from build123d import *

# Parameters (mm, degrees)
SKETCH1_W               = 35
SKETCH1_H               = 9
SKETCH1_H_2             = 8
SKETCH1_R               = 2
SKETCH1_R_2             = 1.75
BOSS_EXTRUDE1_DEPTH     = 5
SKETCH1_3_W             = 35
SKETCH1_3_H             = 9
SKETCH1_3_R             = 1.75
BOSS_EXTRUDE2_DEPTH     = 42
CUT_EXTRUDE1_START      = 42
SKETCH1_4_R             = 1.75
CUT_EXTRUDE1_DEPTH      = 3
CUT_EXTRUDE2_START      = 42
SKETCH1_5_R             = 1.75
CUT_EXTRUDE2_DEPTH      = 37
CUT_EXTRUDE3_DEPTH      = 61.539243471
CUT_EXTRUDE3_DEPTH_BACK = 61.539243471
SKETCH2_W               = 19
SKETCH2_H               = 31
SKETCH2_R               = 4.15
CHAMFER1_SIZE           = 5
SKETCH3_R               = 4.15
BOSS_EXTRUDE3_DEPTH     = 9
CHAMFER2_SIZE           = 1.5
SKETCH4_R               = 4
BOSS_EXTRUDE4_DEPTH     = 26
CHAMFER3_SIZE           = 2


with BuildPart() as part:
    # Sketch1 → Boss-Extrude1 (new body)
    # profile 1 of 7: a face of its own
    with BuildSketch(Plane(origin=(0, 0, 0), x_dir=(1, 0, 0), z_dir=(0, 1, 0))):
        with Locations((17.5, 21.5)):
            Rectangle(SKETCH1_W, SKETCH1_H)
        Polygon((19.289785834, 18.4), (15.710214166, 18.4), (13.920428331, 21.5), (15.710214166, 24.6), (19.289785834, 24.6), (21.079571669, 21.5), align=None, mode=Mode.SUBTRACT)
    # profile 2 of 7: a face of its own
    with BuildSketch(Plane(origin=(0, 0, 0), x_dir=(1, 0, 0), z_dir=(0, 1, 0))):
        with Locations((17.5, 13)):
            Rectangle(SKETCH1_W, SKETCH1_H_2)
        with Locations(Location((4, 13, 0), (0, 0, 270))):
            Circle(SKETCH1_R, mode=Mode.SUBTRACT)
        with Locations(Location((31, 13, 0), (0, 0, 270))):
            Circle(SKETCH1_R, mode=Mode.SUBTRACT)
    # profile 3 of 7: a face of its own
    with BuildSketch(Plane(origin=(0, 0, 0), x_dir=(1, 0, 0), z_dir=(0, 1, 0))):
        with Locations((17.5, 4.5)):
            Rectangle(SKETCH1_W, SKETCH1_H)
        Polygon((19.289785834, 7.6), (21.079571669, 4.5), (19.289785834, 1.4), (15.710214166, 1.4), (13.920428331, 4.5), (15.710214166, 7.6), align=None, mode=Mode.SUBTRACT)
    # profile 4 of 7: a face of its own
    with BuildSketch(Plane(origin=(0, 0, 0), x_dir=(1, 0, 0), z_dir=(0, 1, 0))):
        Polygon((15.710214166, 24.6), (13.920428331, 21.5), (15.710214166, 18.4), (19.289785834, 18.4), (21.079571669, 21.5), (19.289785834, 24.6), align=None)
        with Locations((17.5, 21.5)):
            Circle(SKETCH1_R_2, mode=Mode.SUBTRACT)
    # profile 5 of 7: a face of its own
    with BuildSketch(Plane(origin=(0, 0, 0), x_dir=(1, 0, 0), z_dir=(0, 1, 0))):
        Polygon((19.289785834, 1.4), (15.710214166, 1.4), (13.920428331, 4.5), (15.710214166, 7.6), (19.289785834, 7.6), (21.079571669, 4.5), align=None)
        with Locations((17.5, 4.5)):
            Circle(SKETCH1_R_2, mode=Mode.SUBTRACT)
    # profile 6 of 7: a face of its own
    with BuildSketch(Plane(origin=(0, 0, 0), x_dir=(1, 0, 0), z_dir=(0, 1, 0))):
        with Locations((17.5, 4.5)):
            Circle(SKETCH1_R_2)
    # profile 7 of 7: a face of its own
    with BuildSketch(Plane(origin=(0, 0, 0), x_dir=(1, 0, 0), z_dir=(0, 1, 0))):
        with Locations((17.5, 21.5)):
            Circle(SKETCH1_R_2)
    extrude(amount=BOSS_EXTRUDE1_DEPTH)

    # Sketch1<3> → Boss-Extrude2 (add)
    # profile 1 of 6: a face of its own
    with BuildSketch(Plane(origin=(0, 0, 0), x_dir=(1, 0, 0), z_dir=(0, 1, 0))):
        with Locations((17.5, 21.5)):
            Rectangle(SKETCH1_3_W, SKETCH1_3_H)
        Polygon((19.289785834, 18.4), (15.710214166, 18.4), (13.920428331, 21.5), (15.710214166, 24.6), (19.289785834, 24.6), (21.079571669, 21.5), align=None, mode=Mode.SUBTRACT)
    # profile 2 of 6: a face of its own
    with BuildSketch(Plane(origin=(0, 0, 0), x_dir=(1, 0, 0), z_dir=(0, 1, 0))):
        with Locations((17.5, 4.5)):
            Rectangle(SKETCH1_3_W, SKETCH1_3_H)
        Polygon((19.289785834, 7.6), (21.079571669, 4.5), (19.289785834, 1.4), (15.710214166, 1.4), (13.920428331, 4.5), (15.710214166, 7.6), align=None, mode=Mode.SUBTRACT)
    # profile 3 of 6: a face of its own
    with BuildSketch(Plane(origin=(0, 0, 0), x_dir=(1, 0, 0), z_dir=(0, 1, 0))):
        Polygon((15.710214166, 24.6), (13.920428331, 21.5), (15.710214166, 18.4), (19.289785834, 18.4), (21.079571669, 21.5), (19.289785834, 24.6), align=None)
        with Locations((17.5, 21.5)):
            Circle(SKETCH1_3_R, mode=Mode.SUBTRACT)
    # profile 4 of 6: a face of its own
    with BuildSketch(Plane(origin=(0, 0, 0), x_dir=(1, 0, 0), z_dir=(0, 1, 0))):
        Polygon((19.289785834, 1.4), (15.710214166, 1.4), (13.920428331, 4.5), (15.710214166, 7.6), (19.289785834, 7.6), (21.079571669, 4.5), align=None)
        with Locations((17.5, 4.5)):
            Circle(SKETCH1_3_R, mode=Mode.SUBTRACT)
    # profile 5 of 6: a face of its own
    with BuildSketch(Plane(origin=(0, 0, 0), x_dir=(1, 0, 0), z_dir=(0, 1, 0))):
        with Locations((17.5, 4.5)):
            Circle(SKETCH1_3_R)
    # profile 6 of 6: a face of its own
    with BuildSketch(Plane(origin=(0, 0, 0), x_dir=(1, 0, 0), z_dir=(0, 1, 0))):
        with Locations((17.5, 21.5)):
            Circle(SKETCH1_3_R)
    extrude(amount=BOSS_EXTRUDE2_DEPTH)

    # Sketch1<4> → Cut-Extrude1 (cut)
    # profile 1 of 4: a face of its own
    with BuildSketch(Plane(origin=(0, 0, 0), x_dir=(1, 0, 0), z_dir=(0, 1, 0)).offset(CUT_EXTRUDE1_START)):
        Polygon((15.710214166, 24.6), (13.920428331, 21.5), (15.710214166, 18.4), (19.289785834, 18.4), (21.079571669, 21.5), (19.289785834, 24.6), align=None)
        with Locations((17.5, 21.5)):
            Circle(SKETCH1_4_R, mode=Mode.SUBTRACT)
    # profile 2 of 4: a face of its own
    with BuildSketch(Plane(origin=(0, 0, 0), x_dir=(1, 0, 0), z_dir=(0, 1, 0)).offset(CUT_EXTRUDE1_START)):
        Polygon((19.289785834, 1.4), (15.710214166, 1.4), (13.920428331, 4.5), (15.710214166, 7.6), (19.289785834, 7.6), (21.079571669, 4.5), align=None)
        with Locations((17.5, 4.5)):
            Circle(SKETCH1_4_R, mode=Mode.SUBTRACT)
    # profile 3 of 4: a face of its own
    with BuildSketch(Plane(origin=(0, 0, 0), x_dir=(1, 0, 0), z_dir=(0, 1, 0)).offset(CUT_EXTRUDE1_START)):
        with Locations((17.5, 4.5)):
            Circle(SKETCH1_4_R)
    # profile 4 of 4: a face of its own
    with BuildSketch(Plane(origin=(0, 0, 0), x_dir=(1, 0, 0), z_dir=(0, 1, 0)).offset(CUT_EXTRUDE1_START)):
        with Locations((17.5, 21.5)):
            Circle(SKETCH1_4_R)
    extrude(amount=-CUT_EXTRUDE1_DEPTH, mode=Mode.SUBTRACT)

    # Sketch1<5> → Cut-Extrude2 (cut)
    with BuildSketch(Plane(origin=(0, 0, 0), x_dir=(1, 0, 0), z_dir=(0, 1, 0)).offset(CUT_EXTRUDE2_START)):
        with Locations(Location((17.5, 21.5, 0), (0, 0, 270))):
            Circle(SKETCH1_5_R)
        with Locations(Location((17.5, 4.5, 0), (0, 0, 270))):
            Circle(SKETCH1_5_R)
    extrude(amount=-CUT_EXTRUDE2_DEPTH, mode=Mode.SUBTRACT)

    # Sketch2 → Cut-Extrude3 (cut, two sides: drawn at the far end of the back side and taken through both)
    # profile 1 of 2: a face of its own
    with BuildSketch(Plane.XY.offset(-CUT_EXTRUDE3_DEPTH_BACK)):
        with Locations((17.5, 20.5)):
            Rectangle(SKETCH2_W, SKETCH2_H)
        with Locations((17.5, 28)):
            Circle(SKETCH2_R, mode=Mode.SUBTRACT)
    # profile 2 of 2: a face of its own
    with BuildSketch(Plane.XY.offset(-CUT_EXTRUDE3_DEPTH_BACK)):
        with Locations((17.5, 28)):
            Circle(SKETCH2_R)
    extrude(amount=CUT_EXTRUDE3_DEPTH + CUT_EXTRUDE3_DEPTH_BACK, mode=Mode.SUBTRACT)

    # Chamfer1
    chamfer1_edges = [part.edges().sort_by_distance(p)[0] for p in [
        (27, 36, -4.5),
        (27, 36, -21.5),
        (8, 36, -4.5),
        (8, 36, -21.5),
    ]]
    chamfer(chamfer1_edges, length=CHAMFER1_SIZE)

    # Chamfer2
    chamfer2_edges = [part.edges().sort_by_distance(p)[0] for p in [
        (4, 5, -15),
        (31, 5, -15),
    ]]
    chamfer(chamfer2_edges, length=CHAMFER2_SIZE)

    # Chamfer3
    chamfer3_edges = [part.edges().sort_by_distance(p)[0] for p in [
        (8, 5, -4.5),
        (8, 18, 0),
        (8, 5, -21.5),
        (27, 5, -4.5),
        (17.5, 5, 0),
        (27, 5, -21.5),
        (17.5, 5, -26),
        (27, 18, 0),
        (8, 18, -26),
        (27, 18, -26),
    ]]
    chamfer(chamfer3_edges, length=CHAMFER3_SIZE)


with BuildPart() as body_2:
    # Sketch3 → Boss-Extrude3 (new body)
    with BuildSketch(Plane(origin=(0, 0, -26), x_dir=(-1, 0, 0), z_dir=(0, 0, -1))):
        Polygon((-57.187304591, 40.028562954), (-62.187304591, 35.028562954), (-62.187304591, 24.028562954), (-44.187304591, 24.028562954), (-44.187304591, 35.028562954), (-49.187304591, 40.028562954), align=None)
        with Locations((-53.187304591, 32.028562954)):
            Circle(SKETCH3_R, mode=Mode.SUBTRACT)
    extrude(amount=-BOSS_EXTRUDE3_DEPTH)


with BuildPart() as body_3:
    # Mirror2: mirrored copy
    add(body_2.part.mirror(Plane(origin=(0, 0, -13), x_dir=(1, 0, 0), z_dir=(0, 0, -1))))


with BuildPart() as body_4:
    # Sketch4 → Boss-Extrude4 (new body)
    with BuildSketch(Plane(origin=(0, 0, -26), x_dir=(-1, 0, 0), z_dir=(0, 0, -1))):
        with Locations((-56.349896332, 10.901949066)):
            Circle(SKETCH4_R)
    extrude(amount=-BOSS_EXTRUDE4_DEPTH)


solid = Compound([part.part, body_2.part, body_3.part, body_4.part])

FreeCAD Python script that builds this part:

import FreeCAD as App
import Part
import Sketcher
from FreeCAD import Vector
Q = App.Units.Quantity


def edges_at(feature, points):
    """Names of the edges that pass closest to the given points."""
    edges = feature.Shape.Edges
    near = lambda p: min(range(len(edges)), key=lambda i: edges[i].distToShape(Part.Vertex(*p))[0])
    return sorted({f"Edge{near(p) + 1}" for p in points})

doc = App.newDocument("Part")
body = doc.addObject("PartDesign::Body", "Body")

# Sketch on XZ plane
sketch1 = body.newObject("Sketcher::SketchObject", "Sketch")
sketch1.AttachmentSupport = (doc.getObject("XZ_Plane"), [""])
sketch1.MapMode = "FlatFace"
sketch1.addGeometry([
    Part.LineSegment(Vector(0, -26, 0), Vector(0, 0, 0)),  # 0
    Part.LineSegment(Vector(0, 0, 0), Vector(35, 0, 0)),  # 1
    Part.LineSegment(Vector(35, 0, 0), Vector(35, -26, 0)),  # 2
    Part.LineSegment(Vector(35, -26, 0), Vector(0, -26, 0)),  # 3
    Part.Circle(Vector(31, -13, 0), Vector(0, 0, 1), 2),  # 4
    Part.Circle(Vector(4, -13, 0), Vector(0, 0, 1), 2),  # 5
], False)
sketch1.addConstraint([
    Sketcher.Constraint("Coincident", 0, 2, 1, 1),
    Sketcher.Constraint("Coincident", 1, 2, 2, 1),
    Sketcher.Constraint("Coincident", 2, 2, 3, 1),
    Sketcher.Constraint("Coincident", 3, 2, 0, 1),
    Sketcher.Constraint("Vertical", 0),
    Sketcher.Constraint("Horizontal", 1),
    Sketcher.Constraint("Vertical", 2),
    Sketcher.Constraint("Horizontal", 3),
    Sketcher.Constraint("Coincident", 0, 2, -1, 1),
    Sketcher.Constraint("Equal", 4, 5),
    Sketcher.Constraint("Horizontal", 4, 3, 5, 3),
    Sketcher.Constraint("Diameter", 4, Q("4 mm")),
    Sketcher.Constraint("DistanceX", 1, 1, 1, 2, Q("35 mm")),
    Sketcher.Constraint("DistanceY", 0, 1, 0, 2, Q("26 mm")),
    Sketcher.Constraint("DistanceX", -1, 1, 4, 3, Q("31 mm")),
    Sketcher.Constraint("DistanceY", 4, 3, -1, 1, Q("13 mm")),
    Sketcher.Constraint("DistanceX", -1, 1, 5, 3, Q("4 mm")),
])
pad1 = body.newObject("PartDesign::Pad", "Pad")
pad1.Profile = sketch1
pad1.Length = 5
pad1.Reversed = True

# Sketch on XZ plane
sketch2 = body.newObject("Sketcher::SketchObject", "Sketch001")
sketch2.AttachmentSupport = (doc.getObject("XZ_Plane"), [""])
sketch2.MapMode = "FlatFace"
sketch2.addGeometry([
    Part.LineSegment(Vector(0, -26, 0), Vector(0, -17, 0)),  # 0
    Part.LineSegment(Vector(0, -17, 0), Vector(35, -17, 0)),  # 1
    Part.LineSegment(Vector(35, -17, 0), Vector(35, -26, 0)),  # 2
    Part.LineSegment(Vector(35, -26, 0), Vector(0, -26, 0)),  # 3
    Part.LineSegment(Vector(0, -9, 0), Vector(0, 0, 0)),  # 4
    Part.LineSegment(Vector(0, 0, 0), Vector(35, 0, 0)),  # 5
    Part.LineSegment(Vector(35, 0, 0), Vector(35, -9, 0)),  # 6
    Part.LineSegment(Vector(35, -9, 0), Vector(0, -9, 0)),  # 7
], False)
sketch2.addConstraint([
    Sketcher.Constraint("Coincident", 0, 2, 1, 1),
    Sketcher.Constraint("Coincident", 1, 2, 2, 1),
    Sketcher.Constraint("Coincident", 2, 2, 3, 1),
    Sketcher.Constraint("Coincident", 3, 2, 0, 1),
    Sketcher.Constraint("Coincident", 4, 2, 5, 1),
    Sketcher.Constraint("Coincident", 5, 2, 6, 1),
    Sketcher.Constraint("Coincident", 6, 2, 7, 1),
    Sketcher.Constraint("Coincident", 7, 2, 4, 1),
    Sketcher.Constraint("Vertical", 0),
    Sketcher.Constraint("Horizontal", 1),
    Sketcher.Constraint("Vertical", 2),
    Sketcher.Constraint("Horizontal", 3),
    Sketcher.Constraint("Vertical", 4),
    Sketcher.Constraint("Horizontal", 5),
    Sketcher.Constraint("Vertical", 6),
    Sketcher.Constraint("Horizontal", 7),
    Sketcher.Constraint("Coincident", 4, 2, -1, 1),
    Sketcher.Constraint("PointOnObject", 0, 2, -2),
    Sketcher.Constraint("Vertical", 2, 2, 5, 2),
    Sketcher.Constraint("Equal", 2, 4),
    Sketcher.Constraint("DistanceX", 1, 1, 1, 2, Q("35 mm")),
    Sketcher.Constraint("DistanceY", 0, 1, 0, 2, Q("9 mm")),
    Sketcher.Constraint("DistanceY", 0, 2, -1, 1, Q("17 mm")),
])
pad2 = body.newObject("PartDesign::Pad", "Pad001")
pad2.Profile = sketch2
pad2.Length = 42
pad2.Reversed = True

# Sketch on XZ plane
sketch3 = body.newObject("Sketcher::SketchObject", "Sketch002")
sketch3.AttachmentSupport = (doc.getObject("XZ_Plane"), [""])
sketch3.MapMode = "FlatFace"
sketch3.AttachmentOffset = App.Placement(Vector(0, 0, -42), App.Rotation())
sketch3.addGeometry([
    Part.LineSegment(Vector(15.710214, -24.6, 0), Vector(13.920428, -21.5, 0)),  # 0
    Part.LineSegment(Vector(13.920428, -21.5, 0), Vector(15.710214, -18.4, 0)),  # 1
    Part.LineSegment(Vector(15.710214, -18.4, 0), Vector(19.289786, -18.4, 0)),  # 2
    Part.LineSegment(Vector(19.289786, -18.4, 0), Vector(21.079572, -21.5, 0)),  # 3
    Part.LineSegment(Vector(21.079572, -21.5, 0), Vector(19.289786, -24.6, 0)),  # 4
    Part.LineSegment(Vector(19.289786, -24.6, 0), Vector(15.710214, -24.6, 0)),  # 5
    Part.LineSegment(Vector(15.710214, -1.4, 0), Vector(19.289786, -1.4, 0)),  # 6
    Part.LineSegment(Vector(19.289786, -1.4, 0), Vector(21.079572, -4.5, 0)),  # 7
    Part.LineSegment(Vector(21.079572, -4.5, 0), Vector(19.289786, -7.6, 0)),  # 8
    Part.LineSegment(Vector(19.289786, -7.6, 0), Vector(15.710214, -7.6, 0)),  # 9
    Part.LineSegment(Vector(15.710214, -7.6, 0), Vector(13.920428, -4.5, 0)),  # 10
    Part.LineSegment(Vector(13.920428, -4.5, 0), Vector(15.710214, -1.4, 0)),  # 11
], False)
sketch3.addConstraint([
    Sketcher.Constraint("Coincident", 0, 2, 1, 1),
    Sketcher.Constraint("Coincident", 1, 2, 2, 1),
    Sketcher.Constraint("Coincident", 2, 2, 3, 1),
    Sketcher.Constraint("Coincident", 3, 2, 4, 1),
    Sketcher.Constraint("Coincident", 4, 2, 5, 1),
    Sketcher.Constraint("Coincident", 5, 2, 0, 1),
    Sketcher.Constraint("Coincident", 6, 2, 7, 1),
    Sketcher.Constraint("Coincident", 7, 2, 8, 1),
    Sketcher.Constraint("Coincident", 8, 2, 9, 1),
    Sketcher.Constraint("Coincident", 9, 2, 10, 1),
    Sketcher.Constraint("Coincident", 10, 2, 11, 1),
    Sketcher.Constraint("Coincident", 11, 2, 6, 1),
    Sketcher.Constraint("Horizontal", 2),
    Sketcher.Constraint("Horizontal", 5),
    Sketcher.Constraint("Horizontal", 6),
    Sketcher.Constraint("Horizontal", 9),
    Sketcher.Constraint("Parallel", 0, 3),
    Sketcher.Constraint("Parallel", 1, 4),
    Sketcher.Constraint("Parallel", 3, 7),
    Sketcher.Constraint("Parallel", 4, 8),
    Sketcher.Constraint("Parallel", 7, 10),
    Sketcher.Constraint("Parallel", 8, 11),
    Sketcher.Constraint("Horizontal", 0, 2, 3, 2),
    Sketcher.Constraint("Horizontal", 7, 2, 10, 2),
    Sketcher.Constraint("Vertical", 2, 2, 4, 2),
    Sketcher.Constraint("Vertical", 1, 2, 5, 2),
    Sketcher.Constraint("Vertical", 4, 2, 6, 2),
    Sketcher.Constraint("Vertical", 3, 2, 7, 2),
    Sketcher.Constraint("Vertical", 6, 2, 8, 2),
    Sketcher.Constraint("Vertical", 5, 2, 9, 2),
    Sketcher.Constraint("Angle", 0, Q("120 deg")),
    Sketcher.Constraint("DistanceY", 2, 2, 6, 2, Q("17 mm")),
    Sketcher.Constraint("DistanceY", 0, 2, -1, 1, Q("21.5 mm")),
    Sketcher.Constraint("DistanceY", 1, 2, -1, 1, Q("18.4 mm")),
    Sketcher.Constraint("DistanceX", 2, 1, 2, 2, Q("3.579572 mm")),
    Sketcher.Constraint("DistanceX", -1, 1, 0, 2, Q("13.920428 mm")),
])
pocket1 = body.newObject("PartDesign::Pocket", "Pocket")
pocket1.Profile = sketch3
pocket1.Length = 3
pocket1.Reversed = True

# Sketch on XZ plane
sketch4 = body.newObject("Sketcher::SketchObject", "Sketch003")
sketch4.AttachmentSupport = (doc.getObject("XZ_Plane"), [""])
sketch4.MapMode = "FlatFace"
sketch4.AttachmentOffset = App.Placement(Vector(0, 0, -42), App.Rotation())
sketch4.addGeometry([
    Part.Circle(Vector(17.5, -21.5, 0), Vector(0, 0, 1), 1.75),
    Part.Circle(Vector(17.5, -4.5, 0), Vector(0, 0, 1), 1.75),
], False)
sketch4.addConstraint([
    Sketcher.Constraint("Equal", 0, 1),
    Sketcher.Constraint("Vertical", 0, 3, 1, 3),
    Sketcher.Constraint("Diameter", 0, Q("3.5 mm")),
    Sketcher.Constraint("DistanceY", 0, 3, 1, 3, Q("17 mm")),
    Sketcher.Constraint("DistanceX", -1, 1, 0, 3, Q("17.5 mm")),
    Sketcher.Constraint("DistanceY", 0, 3, -1, 1, Q("21.5 mm")),
])
pocket2 = body.newObject("PartDesign::Pocket", "Pocket001")
pocket2.Profile = sketch4
pocket2.Length = 37
pocket2.Reversed = True

# Sketch on XY plane
sketch5 = body.newObject("Sketcher::SketchObject", "Sketch004")
sketch5.AttachmentSupport = (doc.getObject("XY_Plane"), [""])
sketch5.MapMode = "FlatFace"
sketch5.addGeometry([
    Part.LineSegment(Vector(8, 36, 0), Vector(8, 5, 0)),
    Part.LineSegment(Vector(8, 5, 0), Vector(27, 5, 0)),
    Part.LineSegment(Vector(27, 5, 0), Vector(27, 36, 0)),
    Part.LineSegment(Vector(27, 36, 0), Vector(8, 36, 0)),
], False)
sketch5.addConstraint([
    Sketcher.Constraint("Coincident", 0, 2, 1, 1),
    Sketcher.Constraint("Coincident", 1, 2, 2, 1),
    Sketcher.Constraint("Coincident", 2, 2, 3, 1),
    Sketcher.Constraint("Coincident", 3, 2, 0, 1),
    Sketcher.Constraint("Vertical", 0),
    Sketcher.Constraint("Horizontal", 1),
    Sketcher.Constraint("Vertical", 2),
    Sketcher.Constraint("Horizontal", 3),
    Sketcher.Constraint("DistanceX", 1, 1, 1, 2, Q("19 mm")),
    Sketcher.Constraint("DistanceY", 0, 2, 0, 1, Q("31 mm")),
    Sketcher.Constraint("DistanceX", -1, 1, 0, 2, Q("8 mm")),
    Sketcher.Constraint("DistanceY", -1, 1, 0, 2, Q("5 mm")),
])
pocket3 = body.newObject("PartDesign::Pocket", "Pocket002")
pocket3.Profile = sketch5
pocket3.Type = "ThroughAll"
pocket3.Midplane = True
doc.recompute()

chamfer = body.newObject("PartDesign::Chamfer", "Chamfer")
chamfer.Base = (pocket3, edges_at(pocket3, [
    (27, 36, -4.5),
    (27, 36, -21.5),
    (8, 36, -4.5),
    (8, 36, -21.5),
]))
chamfer.Size = 5
doc.recompute()

chamfer2 = body.newObject("PartDesign::Chamfer", "Chamfer001")
chamfer2.Base = (chamfer, edges_at(chamfer, [(4, 5, -15), (31, 5, -15)]))
chamfer2.Size = 1.5
doc.recompute()

chamfer3 = body.newObject("PartDesign::Chamfer", "Chamfer002")
chamfer3.Base = (chamfer2, edges_at(chamfer2, [
    (8, 5, -4.5),
    (8, 18, 0),
    (8, 5, -21.5),
    (27, 5, -4.5),
    (17.5, 5, 0),
    (27, 5, -21.5),
    (17.5, 5, -26),
    (27, 18, 0),
    (8, 18, -26),
    (27, 18, -26),
]))
chamfer3.Size = 2
body2 = doc.addObject("PartDesign::Body", "Body001")

# Sketch on XY plane
sketch6 = body2.newObject("Sketcher::SketchObject", "Sketch005")
sketch6.AttachmentSupport = (doc.getObject("XY_Plane001"), [""])
sketch6.MapMode = "FlatFace"
sketch6.AttachmentOffset = App.Placement(Vector(0, 0, -26), App.Rotation())
sketch6.addGeometry([
    Part.LineSegment(Vector(57.187305, 40.028563, 0), Vector(62.187305, 35.028563, 0)),  # 0
    Part.LineSegment(Vector(62.187305, 35.028563, 0), Vector(62.187305, 24.028563, 0)),  # 1
    Part.LineSegment(Vector(62.187305, 24.028563, 0), Vector(44.187305, 24.028563, 0)),  # 2
    Part.LineSegment(Vector(44.187305, 24.028563, 0), Vector(44.187305, 35.028563, 0)),  # 3
    Part.LineSegment(Vector(44.187305, 35.028563, 0), Vector(49.187305, 40.028563, 0)),  # 4
    Part.LineSegment(Vector(49.187305, 40.028563, 0), Vector(57.187305, 40.028563, 0)),  # 5
    Part.Circle(Vector(53.187305, 32.028563, 0), Vector(0, 0, 1), 4.15),  # 6
], False)
sketch6.addConstraint([
    Sketcher.Constraint("Coincident", 0, 2, 1, 1),
    Sketcher.Constraint("Coincident", 1, 2, 2, 1),
    Sketcher.Constraint("Coincident", 2, 2, 3, 1),
    Sketcher.Constraint("Coincident", 3, 2, 4, 1),
    Sketcher.Constraint("Coincident", 4, 2, 5, 1),
    Sketcher.Constraint("Coincident", 5, 2, 0, 1),
    Sketcher.Constraint("Vertical", 1),
    Sketcher.Constraint("Horizontal", 2),
    Sketcher.Constraint("Vertical", 3),
    Sketcher.Constraint("Horizontal", 5),
    Sketcher.Constraint("Perpendicular", 0, 4),
    Sketcher.Constraint("Horizontal", 0, 2, 3, 2),
    Sketcher.Constraint("Equal", 0, 4),
    Sketcher.Constraint("Diameter", 6, Q("8.3 mm")),
    Sketcher.Constraint("DistanceX", 2, 2, 2, 1, Q("18 mm")),
    Sketcher.Constraint("DistanceX", 5, 1, 5, 2, Q("8 mm")),
    Sketcher.Constraint("DistanceY", 1, 2, 1, 1, Q("11 mm")),
    Sketcher.Constraint("DistanceX", 6, 3, 0, 2, Q("9 mm")),
    Sketcher.Constraint("DistanceY", 6, 3, 0, 2, Q("3 mm")),
    Sketcher.Constraint("DistanceX", -1, 1, 6, 3, Q("53.187305 mm")),
    Sketcher.Constraint("DistanceY", -1, 1, 6, 3, Q("32.028563 mm")),
])
pad3 = body2.newObject("PartDesign::Pad", "Pad002")
pad3.Profile = sketch6
pad3.Length = 9
body3 = doc.addObject("PartDesign::Body", "Body002")
doc.recompute()

mirroring = doc.addObject("Part::Mirroring", "Mirroring")
mirroring.Source = body2
mirroring.Base = Vector(0, 0, -13)
mirroring.Normal = Vector(0, 0, -1)
body3.BaseFeature = mirroring
doc.recompute()
body4 = doc.addObject("PartDesign::Body", "Body003")

# Sketch on XY plane
sketch7 = body4.newObject("Sketcher::SketchObject", "Sketch006")
sketch7.AttachmentSupport = (doc.getObject("XY_Plane003"), [""])
sketch7.MapMode = "FlatFace"
sketch7.AttachmentOffset = App.Placement(Vector(0, 0, -26), App.Rotation())
sketch7.addGeometry(Part.Circle(Vector(56.349896, 10.901949, 0), Vector(0, 0, 1), 4), False)
sketch7.addConstraint([
    Sketcher.Constraint("Diameter", 0, Q("8 mm")),
    Sketcher.Constraint("DistanceY", -1, 1, 0, 3, Q("10.901949 mm")),
    Sketcher.Constraint("DistanceX", -1, 1, 0, 3, Q("56.349896 mm")),
])
pad4 = body4.newObject("PartDesign::Pad", "Pad003")
pad4.Profile = sketch7
pad4.Length = 26
mirroring.Visibility = False

doc.recompute()
